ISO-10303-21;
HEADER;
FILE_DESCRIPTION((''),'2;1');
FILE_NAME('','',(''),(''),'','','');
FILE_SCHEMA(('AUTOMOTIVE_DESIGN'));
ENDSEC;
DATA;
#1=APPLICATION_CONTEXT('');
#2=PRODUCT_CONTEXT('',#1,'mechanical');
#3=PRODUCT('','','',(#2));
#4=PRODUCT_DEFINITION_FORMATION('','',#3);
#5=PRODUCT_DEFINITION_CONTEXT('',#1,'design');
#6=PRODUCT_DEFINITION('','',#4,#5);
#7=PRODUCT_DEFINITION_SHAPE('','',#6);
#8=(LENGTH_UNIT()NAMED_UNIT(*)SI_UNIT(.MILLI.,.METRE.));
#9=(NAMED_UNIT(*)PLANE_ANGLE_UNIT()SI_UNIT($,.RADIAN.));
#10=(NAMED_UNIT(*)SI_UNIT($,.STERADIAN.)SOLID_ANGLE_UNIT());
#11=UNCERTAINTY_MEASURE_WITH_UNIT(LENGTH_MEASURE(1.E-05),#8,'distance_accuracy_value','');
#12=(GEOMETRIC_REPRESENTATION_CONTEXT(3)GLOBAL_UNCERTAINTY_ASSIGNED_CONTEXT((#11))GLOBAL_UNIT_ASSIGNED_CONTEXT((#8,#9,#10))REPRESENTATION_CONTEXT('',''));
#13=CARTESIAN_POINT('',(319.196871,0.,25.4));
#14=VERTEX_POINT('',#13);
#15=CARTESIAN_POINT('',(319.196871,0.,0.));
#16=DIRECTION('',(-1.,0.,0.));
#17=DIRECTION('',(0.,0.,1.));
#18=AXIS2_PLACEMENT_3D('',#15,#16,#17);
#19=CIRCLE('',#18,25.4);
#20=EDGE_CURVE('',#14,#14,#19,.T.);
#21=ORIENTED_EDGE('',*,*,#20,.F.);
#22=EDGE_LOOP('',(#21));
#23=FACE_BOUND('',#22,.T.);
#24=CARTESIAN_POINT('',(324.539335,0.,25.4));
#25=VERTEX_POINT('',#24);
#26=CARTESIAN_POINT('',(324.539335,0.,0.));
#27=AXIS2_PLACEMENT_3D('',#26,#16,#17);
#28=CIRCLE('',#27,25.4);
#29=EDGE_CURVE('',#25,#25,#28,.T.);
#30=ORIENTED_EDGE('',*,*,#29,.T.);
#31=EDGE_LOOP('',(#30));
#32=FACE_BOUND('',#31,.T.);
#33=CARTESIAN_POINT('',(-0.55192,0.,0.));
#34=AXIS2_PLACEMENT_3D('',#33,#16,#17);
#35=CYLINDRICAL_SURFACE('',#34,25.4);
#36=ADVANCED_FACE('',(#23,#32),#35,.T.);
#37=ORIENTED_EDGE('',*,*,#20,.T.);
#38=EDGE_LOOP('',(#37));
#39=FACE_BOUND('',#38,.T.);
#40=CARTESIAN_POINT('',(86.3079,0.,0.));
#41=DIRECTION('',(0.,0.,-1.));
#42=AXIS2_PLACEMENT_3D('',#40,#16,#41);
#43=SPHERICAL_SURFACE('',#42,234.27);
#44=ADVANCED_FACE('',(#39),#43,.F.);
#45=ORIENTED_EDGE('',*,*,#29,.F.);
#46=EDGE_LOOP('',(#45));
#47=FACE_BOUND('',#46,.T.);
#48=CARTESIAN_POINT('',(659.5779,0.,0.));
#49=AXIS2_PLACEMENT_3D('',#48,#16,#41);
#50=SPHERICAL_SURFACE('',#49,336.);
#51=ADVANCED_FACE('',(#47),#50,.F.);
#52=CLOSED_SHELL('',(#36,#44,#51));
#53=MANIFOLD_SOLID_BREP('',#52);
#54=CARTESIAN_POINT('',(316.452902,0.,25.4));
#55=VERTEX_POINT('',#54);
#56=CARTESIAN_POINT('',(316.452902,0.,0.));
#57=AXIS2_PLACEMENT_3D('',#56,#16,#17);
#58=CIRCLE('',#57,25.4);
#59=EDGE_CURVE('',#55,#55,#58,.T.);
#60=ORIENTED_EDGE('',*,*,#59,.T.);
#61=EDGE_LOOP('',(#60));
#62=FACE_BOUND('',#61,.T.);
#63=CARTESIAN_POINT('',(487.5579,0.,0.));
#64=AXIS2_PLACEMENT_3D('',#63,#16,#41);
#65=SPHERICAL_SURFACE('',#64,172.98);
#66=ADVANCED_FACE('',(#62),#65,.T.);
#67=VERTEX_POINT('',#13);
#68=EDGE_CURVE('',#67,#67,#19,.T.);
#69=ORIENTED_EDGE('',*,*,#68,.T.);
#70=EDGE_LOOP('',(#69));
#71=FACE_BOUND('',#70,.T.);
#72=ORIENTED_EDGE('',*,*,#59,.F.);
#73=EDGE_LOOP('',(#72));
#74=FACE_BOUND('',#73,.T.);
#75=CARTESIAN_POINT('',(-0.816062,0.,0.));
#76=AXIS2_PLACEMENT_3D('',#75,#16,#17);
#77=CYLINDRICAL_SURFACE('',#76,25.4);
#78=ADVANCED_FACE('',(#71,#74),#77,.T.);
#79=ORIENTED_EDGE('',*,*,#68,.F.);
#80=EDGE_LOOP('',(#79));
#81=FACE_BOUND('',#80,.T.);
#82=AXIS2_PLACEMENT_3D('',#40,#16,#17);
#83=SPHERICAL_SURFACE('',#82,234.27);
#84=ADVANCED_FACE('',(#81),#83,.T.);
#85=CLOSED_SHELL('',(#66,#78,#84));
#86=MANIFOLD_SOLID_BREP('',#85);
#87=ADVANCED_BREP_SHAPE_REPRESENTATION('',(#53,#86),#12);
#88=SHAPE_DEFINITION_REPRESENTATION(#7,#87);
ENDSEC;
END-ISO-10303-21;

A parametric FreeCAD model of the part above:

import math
import FreeCAD as App
import Part
import Sketcher

V = App.Vector
Q = App.Units.Quantity

doc = App.newDocument("Part")
body = doc.addObject("PartDesign::Body", "Body")

# Sketch on XZ plane
sketch1 = body.newObject("Sketcher::SketchObject", "Sketch")
sketch1.AttachmentSupport = (doc.getObject("XZ_Plane"), [""])
sketch1.MapMode = "FlatFace"
sketch1.addGeometry([
    Part.ArcOfCircle(Part.Circle(V(487.6, 0, 0), V(0, 0, 1), 173), math.radians(-180), math.radians(-171.56)),
    Part.LineSegment(V(314.6, 0, 0), V(320.6, 0, 0)),
    Part.ArcOfCircle(Part.Circle(V(86.3, 0, 0), V(0, 0, 1), 234.3), math.radians(-6.22), math.radians(0)),
    Part.LineSegment(V(319.2, -25.4, 0), V(316.5, -25.4, 0)),
], False)
sketch1.addConstraint([
    Sketcher.Constraint("Coincident", 0, 1, 1, 1),
    Sketcher.Constraint("Coincident", 1, 2, 2, 2),
    Sketcher.Constraint("Coincident", 2, 1, 3, 1),
    Sketcher.Constraint("Coincident", 3, 2, 0, 2),
    Sketcher.Constraint("Horizontal", 1),
    Sketcher.Constraint("Horizontal", 3),
    Sketcher.Constraint("PointOnObject", 0, 3, -1),
    Sketcher.Constraint("PointOnObject", 2, 3, -1),
    Sketcher.Constraint("PointOnObject", 0, 1, -1),
    Sketcher.Constraint("DistanceX", 1, 1, 1, 2, Q("6 mm")),
    Sketcher.Constraint("Radius", 0, Q("172.98 mm")),
    Sketcher.Constraint("Radius", 2, Q("234.27 mm")),
    Sketcher.Constraint("DistanceY", 2, 1, -1, 1, Q("25.4 mm")),
    Sketcher.Constraint("DistanceX", -1, 1, 0, 3, Q("487.5579 mm")),
])
revolution = body.newObject("PartDesign::Revolution", "Revolution")
revolution.Profile = sketch1
revolution.ReferenceAxis = (sketch1, ["H_Axis"])
revolution.Angle = 360
body2 = doc.addObject("PartDesign::Body", "Body001")

# Sketch on XZ plane
sketch2 = body2.newObject("Sketcher::SketchObject", "Sketch001")
sketch2.AttachmentSupport = (doc.getObject("XZ_Plane001"), [""])
sketch2.MapMode = "FlatFace"
sketch2.addGeometry([
    Part.LineSegment(V(324.5, -25.4, 0), V(319.2, -25.4, 0)),
    Part.ArcOfCircle(Part.Circle(V(86.3, 0, 0), V(0, 0, 1), 234.3), math.radians(-6.22), math.radians(0)),
    Part.LineSegment(V(320.6, 0, 0), V(323.6, 0, 0)),
    Part.ArcOfCircle(Part.Circle(V(659.6, 0, 0), V(0, 0, 1), 336), math.radians(180), math.radians(184.34)),
], False)
sketch2.addConstraint([
    Sketcher.Constraint("Coincident", 0, 2, 1, 1),
    Sketcher.Constraint("Coincident", 1, 2, 2, 1),
    Sketcher.Constraint("Coincident", 2, 2, 3, 1),
    Sketcher.Constraint("Coincident", 3, 2, 0, 1),
    Sketcher.Constraint("Horizontal", 0),
    Sketcher.Constraint("Horizontal", 2),
    Sketcher.Constraint("PointOnObject", 1, 3, -1),
    Sketcher.Constraint("PointOnObject", 3, 3, -1),
    Sketcher.Constraint("PointOnObject", 1, 2, -1),
    Sketcher.Constraint("Radius", 3, Q("336 mm")),
    Sketcher.Constraint("DistanceX", 2, 1, 2, 2, Q("3 mm")),
    Sketcher.Constraint("Radius", 1, Q("234.27 mm")),
    Sketcher.Constraint("DistanceY", 0, 2, -1, 1, Q("25.4 mm")),
    Sketcher.Constraint("DistanceX", -1, 1, 1, 3, Q("86.3079 mm")),
])
revolution2 = body2.newObject("PartDesign::Revolution", "Revolution001")
revolution2.Profile = sketch2
revolution2.ReferenceAxis = (sketch2, ["H_Axis"])
revolution2.Angle = 360

doc.recompute()
